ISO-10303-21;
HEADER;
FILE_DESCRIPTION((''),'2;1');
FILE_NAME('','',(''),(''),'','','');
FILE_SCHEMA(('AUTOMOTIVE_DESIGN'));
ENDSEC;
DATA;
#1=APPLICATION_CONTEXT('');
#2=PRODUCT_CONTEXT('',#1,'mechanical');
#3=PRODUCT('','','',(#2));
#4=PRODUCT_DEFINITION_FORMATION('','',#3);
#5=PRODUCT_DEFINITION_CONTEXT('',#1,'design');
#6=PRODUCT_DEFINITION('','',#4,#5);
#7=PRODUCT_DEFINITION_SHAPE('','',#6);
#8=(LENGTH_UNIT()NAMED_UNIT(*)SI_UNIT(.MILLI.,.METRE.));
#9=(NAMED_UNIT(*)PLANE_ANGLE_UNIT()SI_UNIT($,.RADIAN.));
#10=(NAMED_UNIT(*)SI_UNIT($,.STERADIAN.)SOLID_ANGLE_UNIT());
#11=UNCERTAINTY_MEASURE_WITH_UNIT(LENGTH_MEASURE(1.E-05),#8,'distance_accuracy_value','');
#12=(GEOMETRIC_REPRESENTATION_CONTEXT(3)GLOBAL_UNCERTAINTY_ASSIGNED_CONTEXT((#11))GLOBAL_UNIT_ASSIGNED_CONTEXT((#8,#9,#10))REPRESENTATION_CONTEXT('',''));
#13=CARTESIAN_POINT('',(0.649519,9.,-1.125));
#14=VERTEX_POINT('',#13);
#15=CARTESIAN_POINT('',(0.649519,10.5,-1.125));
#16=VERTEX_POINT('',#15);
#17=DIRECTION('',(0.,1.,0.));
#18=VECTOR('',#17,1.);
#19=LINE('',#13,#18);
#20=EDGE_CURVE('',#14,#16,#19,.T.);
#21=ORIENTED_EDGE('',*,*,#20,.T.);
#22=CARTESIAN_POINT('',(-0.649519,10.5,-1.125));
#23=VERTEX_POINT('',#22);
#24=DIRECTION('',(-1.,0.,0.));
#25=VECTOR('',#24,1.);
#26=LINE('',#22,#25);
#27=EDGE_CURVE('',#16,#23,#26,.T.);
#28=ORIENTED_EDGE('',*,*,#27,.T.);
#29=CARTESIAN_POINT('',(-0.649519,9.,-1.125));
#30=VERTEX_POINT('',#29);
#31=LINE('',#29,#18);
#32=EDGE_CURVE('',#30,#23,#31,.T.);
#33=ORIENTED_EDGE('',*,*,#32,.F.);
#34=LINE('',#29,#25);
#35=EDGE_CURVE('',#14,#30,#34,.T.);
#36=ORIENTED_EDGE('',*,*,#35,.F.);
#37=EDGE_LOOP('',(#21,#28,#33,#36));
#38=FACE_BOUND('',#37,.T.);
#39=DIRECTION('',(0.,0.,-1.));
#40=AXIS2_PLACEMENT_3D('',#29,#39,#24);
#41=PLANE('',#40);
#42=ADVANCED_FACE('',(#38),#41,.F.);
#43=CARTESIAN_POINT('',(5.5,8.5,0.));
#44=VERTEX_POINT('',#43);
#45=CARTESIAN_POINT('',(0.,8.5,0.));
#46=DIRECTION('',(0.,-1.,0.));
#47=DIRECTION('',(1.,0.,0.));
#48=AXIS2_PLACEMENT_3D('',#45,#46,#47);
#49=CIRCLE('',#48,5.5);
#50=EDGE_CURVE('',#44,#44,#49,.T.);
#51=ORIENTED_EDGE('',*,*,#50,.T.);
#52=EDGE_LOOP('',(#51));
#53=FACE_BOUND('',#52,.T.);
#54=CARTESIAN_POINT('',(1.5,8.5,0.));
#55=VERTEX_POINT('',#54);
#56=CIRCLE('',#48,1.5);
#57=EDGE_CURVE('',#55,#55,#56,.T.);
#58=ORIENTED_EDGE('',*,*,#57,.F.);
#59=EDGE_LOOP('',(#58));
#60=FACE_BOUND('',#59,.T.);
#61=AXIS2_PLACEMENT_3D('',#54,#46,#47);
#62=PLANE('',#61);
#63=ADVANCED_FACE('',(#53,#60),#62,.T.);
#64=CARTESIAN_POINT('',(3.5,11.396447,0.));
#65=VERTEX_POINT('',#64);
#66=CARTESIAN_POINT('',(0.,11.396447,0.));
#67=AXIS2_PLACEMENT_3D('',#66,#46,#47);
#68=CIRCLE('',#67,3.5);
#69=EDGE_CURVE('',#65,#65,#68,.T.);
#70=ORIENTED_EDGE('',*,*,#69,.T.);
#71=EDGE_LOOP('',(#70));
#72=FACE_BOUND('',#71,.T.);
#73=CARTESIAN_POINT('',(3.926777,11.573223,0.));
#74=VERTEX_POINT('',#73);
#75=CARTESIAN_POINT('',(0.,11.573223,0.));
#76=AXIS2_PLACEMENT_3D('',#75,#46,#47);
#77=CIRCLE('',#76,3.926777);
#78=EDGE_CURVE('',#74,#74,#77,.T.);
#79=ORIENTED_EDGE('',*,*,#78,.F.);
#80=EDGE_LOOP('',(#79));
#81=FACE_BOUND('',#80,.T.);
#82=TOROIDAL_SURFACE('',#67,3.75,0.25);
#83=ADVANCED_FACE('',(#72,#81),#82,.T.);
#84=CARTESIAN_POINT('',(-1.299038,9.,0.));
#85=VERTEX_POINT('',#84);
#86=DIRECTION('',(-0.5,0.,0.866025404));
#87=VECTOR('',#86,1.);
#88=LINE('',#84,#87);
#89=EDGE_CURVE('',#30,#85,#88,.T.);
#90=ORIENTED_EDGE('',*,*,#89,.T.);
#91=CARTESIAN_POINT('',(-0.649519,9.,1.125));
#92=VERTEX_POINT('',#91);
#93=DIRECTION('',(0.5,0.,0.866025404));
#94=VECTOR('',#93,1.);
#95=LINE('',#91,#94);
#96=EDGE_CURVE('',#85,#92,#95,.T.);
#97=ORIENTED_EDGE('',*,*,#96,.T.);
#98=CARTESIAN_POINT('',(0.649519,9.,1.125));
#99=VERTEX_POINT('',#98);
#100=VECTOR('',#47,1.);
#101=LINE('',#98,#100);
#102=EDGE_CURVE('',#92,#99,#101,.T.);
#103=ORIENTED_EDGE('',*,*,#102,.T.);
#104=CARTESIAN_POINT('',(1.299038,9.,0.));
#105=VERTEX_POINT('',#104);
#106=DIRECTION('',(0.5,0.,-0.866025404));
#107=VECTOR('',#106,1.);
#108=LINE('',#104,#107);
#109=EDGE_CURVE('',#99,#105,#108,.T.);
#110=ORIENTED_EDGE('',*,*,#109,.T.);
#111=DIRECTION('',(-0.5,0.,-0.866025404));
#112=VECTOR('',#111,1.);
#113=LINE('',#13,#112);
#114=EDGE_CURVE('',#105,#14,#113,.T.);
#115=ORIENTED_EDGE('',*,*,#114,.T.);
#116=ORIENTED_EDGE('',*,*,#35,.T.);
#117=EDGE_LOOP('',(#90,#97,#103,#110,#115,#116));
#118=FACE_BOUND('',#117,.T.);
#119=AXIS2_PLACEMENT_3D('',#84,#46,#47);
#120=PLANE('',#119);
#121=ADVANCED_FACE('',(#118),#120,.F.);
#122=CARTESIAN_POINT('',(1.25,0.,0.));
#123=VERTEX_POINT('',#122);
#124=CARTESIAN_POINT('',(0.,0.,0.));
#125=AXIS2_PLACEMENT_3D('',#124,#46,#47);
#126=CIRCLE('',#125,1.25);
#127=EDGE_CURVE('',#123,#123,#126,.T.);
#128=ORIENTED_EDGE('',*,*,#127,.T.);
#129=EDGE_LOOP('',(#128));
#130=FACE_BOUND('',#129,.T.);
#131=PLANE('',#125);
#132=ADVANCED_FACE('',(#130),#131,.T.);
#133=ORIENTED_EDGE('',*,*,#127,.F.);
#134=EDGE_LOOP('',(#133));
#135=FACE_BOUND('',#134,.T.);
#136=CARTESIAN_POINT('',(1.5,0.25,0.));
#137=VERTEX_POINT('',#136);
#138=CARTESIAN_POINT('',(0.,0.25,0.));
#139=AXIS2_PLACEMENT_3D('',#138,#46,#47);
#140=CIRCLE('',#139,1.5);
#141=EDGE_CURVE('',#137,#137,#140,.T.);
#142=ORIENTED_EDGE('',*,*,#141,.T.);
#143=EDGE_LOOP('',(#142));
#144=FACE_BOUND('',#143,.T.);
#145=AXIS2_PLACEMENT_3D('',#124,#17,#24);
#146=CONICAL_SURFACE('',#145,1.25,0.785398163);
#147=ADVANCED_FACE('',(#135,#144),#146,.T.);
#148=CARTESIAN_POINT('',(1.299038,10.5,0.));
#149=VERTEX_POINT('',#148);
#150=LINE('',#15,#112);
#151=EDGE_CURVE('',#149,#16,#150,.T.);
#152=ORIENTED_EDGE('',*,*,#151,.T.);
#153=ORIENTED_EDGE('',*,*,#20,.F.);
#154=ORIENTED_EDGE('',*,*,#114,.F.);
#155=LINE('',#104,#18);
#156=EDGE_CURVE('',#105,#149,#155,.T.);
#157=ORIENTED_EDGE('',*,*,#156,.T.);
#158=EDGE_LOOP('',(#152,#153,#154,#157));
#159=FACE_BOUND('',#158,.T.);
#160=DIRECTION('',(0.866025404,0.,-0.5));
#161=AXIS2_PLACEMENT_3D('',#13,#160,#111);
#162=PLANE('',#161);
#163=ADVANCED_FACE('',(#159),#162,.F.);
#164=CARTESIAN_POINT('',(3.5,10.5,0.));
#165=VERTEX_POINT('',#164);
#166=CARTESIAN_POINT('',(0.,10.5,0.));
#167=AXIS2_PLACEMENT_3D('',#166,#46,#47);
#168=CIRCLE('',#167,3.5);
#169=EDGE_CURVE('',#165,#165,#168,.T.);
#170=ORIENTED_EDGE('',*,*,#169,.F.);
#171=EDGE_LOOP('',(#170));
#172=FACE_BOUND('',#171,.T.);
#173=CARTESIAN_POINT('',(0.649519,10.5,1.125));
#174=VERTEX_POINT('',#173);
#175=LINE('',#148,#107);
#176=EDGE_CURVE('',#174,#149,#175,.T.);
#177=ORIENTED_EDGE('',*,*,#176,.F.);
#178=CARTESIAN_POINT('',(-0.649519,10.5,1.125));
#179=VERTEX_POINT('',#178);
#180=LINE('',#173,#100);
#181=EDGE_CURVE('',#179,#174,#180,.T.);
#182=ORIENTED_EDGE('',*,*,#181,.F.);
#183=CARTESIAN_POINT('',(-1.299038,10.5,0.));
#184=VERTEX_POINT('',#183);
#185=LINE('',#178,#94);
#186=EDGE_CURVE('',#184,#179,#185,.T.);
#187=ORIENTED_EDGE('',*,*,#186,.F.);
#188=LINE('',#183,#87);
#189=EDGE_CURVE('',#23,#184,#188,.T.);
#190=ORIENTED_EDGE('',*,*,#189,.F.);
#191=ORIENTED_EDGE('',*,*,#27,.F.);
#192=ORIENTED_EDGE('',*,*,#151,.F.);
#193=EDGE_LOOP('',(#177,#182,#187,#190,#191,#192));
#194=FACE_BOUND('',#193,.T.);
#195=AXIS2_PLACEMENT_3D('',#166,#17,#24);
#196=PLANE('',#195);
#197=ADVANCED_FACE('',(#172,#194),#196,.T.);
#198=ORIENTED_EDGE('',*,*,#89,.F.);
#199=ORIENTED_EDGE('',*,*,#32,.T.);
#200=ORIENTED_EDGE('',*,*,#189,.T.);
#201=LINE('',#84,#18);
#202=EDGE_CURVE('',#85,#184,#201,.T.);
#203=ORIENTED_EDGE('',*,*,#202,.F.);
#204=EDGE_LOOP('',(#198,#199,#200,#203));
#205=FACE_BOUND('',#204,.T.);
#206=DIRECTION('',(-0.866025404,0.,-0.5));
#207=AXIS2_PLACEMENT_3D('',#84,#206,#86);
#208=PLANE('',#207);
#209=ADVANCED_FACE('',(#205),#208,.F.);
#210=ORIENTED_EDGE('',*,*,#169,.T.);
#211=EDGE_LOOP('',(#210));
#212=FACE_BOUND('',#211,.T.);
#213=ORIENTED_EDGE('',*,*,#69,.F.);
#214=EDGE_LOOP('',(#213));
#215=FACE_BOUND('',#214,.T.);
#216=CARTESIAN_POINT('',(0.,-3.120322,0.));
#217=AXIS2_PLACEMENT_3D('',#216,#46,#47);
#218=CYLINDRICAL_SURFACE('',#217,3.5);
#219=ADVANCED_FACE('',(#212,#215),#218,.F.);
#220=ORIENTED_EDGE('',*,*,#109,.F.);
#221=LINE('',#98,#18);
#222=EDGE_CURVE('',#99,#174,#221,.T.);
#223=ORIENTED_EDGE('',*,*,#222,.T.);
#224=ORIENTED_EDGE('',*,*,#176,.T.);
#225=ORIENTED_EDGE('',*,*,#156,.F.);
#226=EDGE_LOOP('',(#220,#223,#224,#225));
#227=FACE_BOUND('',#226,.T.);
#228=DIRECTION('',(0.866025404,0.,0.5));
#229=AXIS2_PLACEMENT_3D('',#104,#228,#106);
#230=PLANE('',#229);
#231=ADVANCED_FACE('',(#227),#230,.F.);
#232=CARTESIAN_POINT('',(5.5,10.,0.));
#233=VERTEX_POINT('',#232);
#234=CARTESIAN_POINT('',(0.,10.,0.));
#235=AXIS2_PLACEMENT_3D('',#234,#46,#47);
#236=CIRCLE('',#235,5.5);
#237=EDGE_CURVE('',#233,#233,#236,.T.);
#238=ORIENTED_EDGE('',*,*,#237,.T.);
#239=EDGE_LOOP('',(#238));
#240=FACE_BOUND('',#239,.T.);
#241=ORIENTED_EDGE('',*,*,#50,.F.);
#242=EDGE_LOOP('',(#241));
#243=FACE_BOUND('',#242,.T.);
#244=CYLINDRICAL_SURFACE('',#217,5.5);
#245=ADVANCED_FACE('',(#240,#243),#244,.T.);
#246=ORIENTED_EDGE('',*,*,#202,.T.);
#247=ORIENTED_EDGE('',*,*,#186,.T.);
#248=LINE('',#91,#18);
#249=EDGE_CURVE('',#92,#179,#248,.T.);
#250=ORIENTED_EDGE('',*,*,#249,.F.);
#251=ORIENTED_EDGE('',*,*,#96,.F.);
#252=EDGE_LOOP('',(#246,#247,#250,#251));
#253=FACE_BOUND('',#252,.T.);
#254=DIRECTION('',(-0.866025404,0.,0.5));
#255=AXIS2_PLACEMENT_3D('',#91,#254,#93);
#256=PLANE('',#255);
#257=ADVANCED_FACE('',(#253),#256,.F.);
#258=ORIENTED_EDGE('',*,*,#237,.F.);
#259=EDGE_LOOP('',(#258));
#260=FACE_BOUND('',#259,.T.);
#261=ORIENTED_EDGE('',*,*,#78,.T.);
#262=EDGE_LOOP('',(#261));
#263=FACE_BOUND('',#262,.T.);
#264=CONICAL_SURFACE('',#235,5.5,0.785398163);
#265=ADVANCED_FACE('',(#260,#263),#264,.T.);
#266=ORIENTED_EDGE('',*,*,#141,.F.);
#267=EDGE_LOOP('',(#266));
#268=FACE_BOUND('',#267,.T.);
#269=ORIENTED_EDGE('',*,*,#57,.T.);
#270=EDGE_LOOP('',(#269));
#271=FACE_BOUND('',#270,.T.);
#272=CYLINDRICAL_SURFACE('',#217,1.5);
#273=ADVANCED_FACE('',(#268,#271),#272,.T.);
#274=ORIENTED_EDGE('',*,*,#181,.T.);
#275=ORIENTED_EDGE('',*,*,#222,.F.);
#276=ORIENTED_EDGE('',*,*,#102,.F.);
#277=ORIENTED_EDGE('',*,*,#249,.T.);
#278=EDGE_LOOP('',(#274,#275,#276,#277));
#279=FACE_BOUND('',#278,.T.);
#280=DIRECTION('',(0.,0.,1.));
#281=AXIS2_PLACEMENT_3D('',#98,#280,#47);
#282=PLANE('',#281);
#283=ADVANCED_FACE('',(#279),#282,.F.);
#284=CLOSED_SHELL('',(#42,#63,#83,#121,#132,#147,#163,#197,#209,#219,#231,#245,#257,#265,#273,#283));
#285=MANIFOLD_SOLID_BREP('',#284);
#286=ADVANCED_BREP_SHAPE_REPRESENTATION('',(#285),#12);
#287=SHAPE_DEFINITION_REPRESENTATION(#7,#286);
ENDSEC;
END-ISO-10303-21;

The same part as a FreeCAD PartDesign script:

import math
import FreeCAD as App
import Part
import Sketcher
from FreeCAD import Vector
Q = App.Units.Quantity


def add_polygon(sketch, points):
    """Adds a closed chain of lines whose ends are joined by coincident constraints."""
    first, n = sketch.GeometryCount, len(points)
    for a, b in zip(points, points[1:] + points[:1]):
        sketch.addGeometry(Part.LineSegment(App.Vector(*a, 0), App.Vector(*b, 0)), False)
    for i in range(n):
        sketch.addConstraint(Sketcher.Constraint("Coincident", first + i, 2, first + (i + 1) % n, 1))

doc = App.newDocument("Part")
body = doc.addObject("PartDesign::Body", "Body")

# Sketch on XY plane
sketch1 = doc.addObject("Sketcher::SketchObject", "Sketch")
body.addObject(sketch1)
sketch1.AttachmentSupport = (doc.XY_Plane, [""])
sketch1.MapMode = "FlatFace"
sketch1.addGeometry(Part.LineSegment(Vector(0, 0, 0), Vector(1.25, 0, 0)), False)
sketch1.addGeometry(Part.LineSegment(Vector(1.25, 0, 0), Vector(1.5, 0.25, 0)), False)
sketch1.addGeometry(Part.LineSegment(Vector(1.5, 0.25, 0), Vector(1.5, 8.5, 0)), False)
sketch1.addGeometry(Part.LineSegment(Vector(1.5, 8.5, 0), Vector(5.5, 8.5, 0)), False)
sketch1.addGeometry(Part.LineSegment(Vector(5.5, 8.5, 0), Vector(5.5, 10, 0)), False)
sketch1.addGeometry(Part.LineSegment(Vector(5.5, 10, 0), Vector(3.926777, 11.573223, 0)), False)
sketch1.addGeometry(Part.ArcOfCircle(Part.Circle(Vector(3.75, 11.396447, 0), Vector(0, 0, 1), 0.25), math.radians(45), math.radians(180)), False)
sketch1.addGeometry(Part.LineSegment(Vector(3.5, 11.396447, 0), Vector(3.5, 10.5, 0)), False)
sketch1.addGeometry(Part.LineSegment(Vector(3.5, 10.5, 0), Vector(0, 10.5, 0)), False)
sketch1.addGeometry(Part.LineSegment(Vector(0, 10.5, 0), Vector(0, 0, 0)), False)
sketch1.addConstraint(Sketcher.Constraint("Coincident", 0, 2, 1, 1))
sketch1.addConstraint(Sketcher.Constraint("Coincident", 1, 2, 2, 1))
sketch1.addConstraint(Sketcher.Constraint("Coincident", 2, 2, 3, 1))
sketch1.addConstraint(Sketcher.Constraint("Coincident", 3, 2, 4, 1))
sketch1.addConstraint(Sketcher.Constraint("Coincident", 4, 2, 5, 1))
sketch1.addConstraint(Sketcher.Constraint("Tangent", 5, 2, 6, 1))
sketch1.addConstraint(Sketcher.Constraint("Tangent", 6, 2, 7, 1))
sketch1.addConstraint(Sketcher.Constraint("Coincident", 7, 2, 8, 1))
sketch1.addConstraint(Sketcher.Constraint("Coincident", 8, 2, 9, 1))
sketch1.addConstraint(Sketcher.Constraint("Coincident", 9, 2, 0, 1))
sketch1.addConstraint(Sketcher.Constraint("Horizontal", 0))
sketch1.addConstraint(Sketcher.Constraint("Vertical", 2))
sketch1.addConstraint(Sketcher.Constraint("Horizontal", 3))
sketch1.addConstraint(Sketcher.Constraint("Vertical", 4))
sketch1.addConstraint(Sketcher.Constraint("Vertical", 7))
sketch1.addConstraint(Sketcher.Constraint("Horizontal", 8))
sketch1.addConstraint(Sketcher.Constraint("Vertical", 9))
sketch1.addConstraint(Sketcher.Constraint("Coincident", 9, 2, -1, 1))
sketch1.addConstraint(Sketcher.Constraint("Perpendicular", 1, 5))
sketch1.addConstraint(Sketcher.Constraint("DistanceX", 3, 1, 3, 2, 4.0))
sketch1.addConstraint(Sketcher.Constraint("Angle", 1, Q("45 deg")))
sketch1.addConstraint(Sketcher.Constraint("Radius", 6, 0.25))
sketch1.addConstraint(Sketcher.Constraint("DistanceX", 8, 2, 8, 1, 3.5))
sketch1.addConstraint(Sketcher.Constraint("DistanceY", 4, 1, 4, 2, 1.5))
sketch1.addConstraint(Sketcher.Constraint("DistanceY", 9, 2, 9, 1, 10.5))
sketch1.addConstraint(Sketcher.Constraint("DistanceY", -1, 1, 4, 2, 10.0))
sketch1.addConstraint(Sketcher.Constraint("DistanceX", 6, 2, 4, 2, 2.0))
sketch1.addConstraint(Sketcher.Constraint("DistanceX", 0, 1, 0, 2, 1.25))
revolution = doc.addObject("PartDesign::Revolution", "Revolution")
body.addObject(revolution)
revolution.Profile = sketch1
revolution.ReferenceAxis = (sketch1, ["V_Axis"])
revolution.Angle = 360

# Sketch on XZ plane
sketch2 = doc.addObject("Sketcher::SketchObject", "Sketch001")
body.addObject(sketch2)
sketch2.AttachmentSupport = (doc.XZ_Plane, [""])
sketch2.MapMode = "FlatFace"
sketch2.AttachmentOffset = App.Placement(Vector(0, 0, -10.5), App.Rotation())
add_polygon(sketch2, [(-0.649519, 1.125), (0.649519, 1.125), (1.299038, 0), (0.649519, -1.125), (-0.649519, -1.125), (-1.299038, 0)])  # lines 0-5
sketch2.addConstraint(Sketcher.Constraint("Horizontal", 0))
sketch2.addConstraint(Sketcher.Constraint("Horizontal", 3))
sketch2.addConstraint(Sketcher.Constraint("Symmetric", 0, 2, 3, 2, -1, 1))
sketch2.addConstraint(Sketcher.Constraint("Symmetric", 1, 2, 4, 2, -1, 1))
sketch2.addConstraint(Sketcher.Constraint("PointOnObject", 1, 2, -1))
sketch2.addConstraint(Sketcher.Constraint("Parallel", 2, 5))
sketch2.addConstraint(Sketcher.Constraint("Vertical", 0, 2, 2, 2))
sketch2.addConstraint(Sketcher.Constraint("Angle", 1, Q("-60 deg")))
sketch2.addConstraint(Sketcher.Constraint("DistanceY", 2, 2, 0, 2, 2.25))
sketch2.addConstraint(Sketcher.Constraint("DistanceX", 0, 1, 0, 2, 1.299038))
pocket1 = doc.addObject("PartDesign::Pocket", "Pocket")
body.addObject(pocket1)
pocket1.Profile = sketch2
pocket1.Length = 1.5
pocket1.Reversed = True

doc.recompute()
